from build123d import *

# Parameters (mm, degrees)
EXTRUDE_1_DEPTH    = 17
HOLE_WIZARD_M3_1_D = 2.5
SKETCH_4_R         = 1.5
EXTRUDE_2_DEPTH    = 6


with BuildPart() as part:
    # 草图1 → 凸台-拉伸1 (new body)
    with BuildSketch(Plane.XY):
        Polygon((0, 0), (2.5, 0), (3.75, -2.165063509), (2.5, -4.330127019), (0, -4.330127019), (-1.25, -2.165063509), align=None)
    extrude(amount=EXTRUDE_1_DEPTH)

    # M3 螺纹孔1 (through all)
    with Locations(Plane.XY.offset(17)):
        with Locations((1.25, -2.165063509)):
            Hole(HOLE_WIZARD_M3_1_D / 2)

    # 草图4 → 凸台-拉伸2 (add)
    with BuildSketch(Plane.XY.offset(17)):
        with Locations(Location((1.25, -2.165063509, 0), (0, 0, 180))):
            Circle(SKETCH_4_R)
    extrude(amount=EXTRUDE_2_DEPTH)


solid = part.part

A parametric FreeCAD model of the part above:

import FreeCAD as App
import Part
import Sketcher
Q = App.Units.Quantity

doc = App.newDocument("Part")
body = doc.addObject("PartDesign::Body", "Body")

# Sketch on XY plane
sketch1 = body.newObject("Sketcher::SketchObject", "Sketch")
sketch1.AttachmentSupport = (doc.getObject("XY_Plane"), [""])
sketch1.MapMode = "FlatFace"
sketch1.addGeometry([
    Part.LineSegment(App.Vector(2.5, 0, 0), App.Vector(0, 0, 0)),  # 0
    Part.LineSegment(App.Vector(0, 0, 0), App.Vector(-1.2, -2.2, 0)),  # 1
    Part.LineSegment(App.Vector(-1.2, -2.2, 0), App.Vector(0, -4.3, 0)),  # 2
    Part.LineSegment(App.Vector(0, -4.3, 0), App.Vector(2.5, -4.3, 0)),  # 3
    Part.LineSegment(App.Vector(2.5, -4.3, 0), App.Vector(3.8, -2.2, 0)),  # 4
    Part.LineSegment(App.Vector(3.8, -2.2, 0), App.Vector(2.5, 0, 0)),  # 5
], False)
sketch1.addConstraint([
    Sketcher.Constraint("Coincident", 0, 2, 1, 1),
    Sketcher.Constraint("Coincident", 1, 2, 2, 1),
    Sketcher.Constraint("Coincident", 2, 2, 3, 1),
    Sketcher.Constraint("Coincident", 3, 2, 4, 1),
    Sketcher.Constraint("Coincident", 4, 2, 5, 1),
    Sketcher.Constraint("Coincident", 5, 2, 0, 1),
    Sketcher.Constraint("Horizontal", 0),
    Sketcher.Constraint("Horizontal", 3),
    Sketcher.Constraint("Coincident", 0, 2, -1, 1),
    Sketcher.Constraint("PointOnObject", 2, 2, -2),
    Sketcher.Constraint("Parallel", 1, 4),
    Sketcher.Constraint("Parallel", 2, 5),
    Sketcher.Constraint("Horizontal", 1, 2, 4, 2),
    Sketcher.Constraint("Vertical", 3, 2, 5, 2),
    Sketcher.Constraint("Angle", 1, Q("-120 deg")),
    Sketcher.Constraint("DistanceX", 0, 2, 0, 1, Q("2.5 mm")),
    Sketcher.Constraint("DistanceX", 1, 2, 4, 2, Q("5 mm")),
])
pad1 = body.newObject("PartDesign::Pad", "Pad")
pad1.Profile = sketch1
pad1.Length = 17

# Sketch on XY plane
sketch2 = body.newObject("Sketcher::SketchObject", "Sketch001")
sketch2.AttachmentSupport = (doc.getObject("XY_Plane"), [""])
sketch2.MapMode = "FlatFace"
sketch2.AttachmentOffset = App.Placement(App.Vector(0, 0, 17), App.Rotation())
sketch2.addGeometry(Part.Circle(App.Vector(1.2, -2.2, 0), App.Vector(0, 0, 1), 1.2), False)
sketch2.addConstraint([
    Sketcher.Constraint("Diameter", 0, Q("2.5 mm")),
    Sketcher.Constraint("DistanceX", -1, 1, 0, 3, Q("1.25 mm")),
    Sketcher.Constraint("DistanceY", 0, 3, -1, 1, Q("2.165064 mm")),
])
doc.recompute()
hole = body.newObject("PartDesign::Hole", "Hole")
hole.Profile = sketch2
hole.ThreadType = "None"
hole.Diameter = 2.5
hole.DepthType = "ThroughAll"

# Sketch on XY plane
sketch3 = body.newObject("Sketcher::SketchObject", "Sketch002")
sketch3.AttachmentSupport = (doc.getObject("XY_Plane"), [""])
sketch3.MapMode = "FlatFace"
sketch3.AttachmentOffset = App.Placement(App.Vector(0, 0, 17), App.Rotation())
sketch3.addGeometry(Part.Circle(App.Vector(1.2, -2.2, 0), App.Vector(0, 0, 1), 1.5), False)
sketch3.addConstraint([
    Sketcher.Constraint("Diameter", 0, Q("3 mm")),
    Sketcher.Constraint("DistanceX", -1, 1, 0, 3, Q("1.25 mm")),
    Sketcher.Constraint("DistanceY", 0, 3, -1, 1, Q("2.165064 mm")),
])
pad2 = body.newObject("PartDesign::Pad", "Pad001")
pad2.Profile = sketch3
pad2.Length = 6

doc.recompute()
